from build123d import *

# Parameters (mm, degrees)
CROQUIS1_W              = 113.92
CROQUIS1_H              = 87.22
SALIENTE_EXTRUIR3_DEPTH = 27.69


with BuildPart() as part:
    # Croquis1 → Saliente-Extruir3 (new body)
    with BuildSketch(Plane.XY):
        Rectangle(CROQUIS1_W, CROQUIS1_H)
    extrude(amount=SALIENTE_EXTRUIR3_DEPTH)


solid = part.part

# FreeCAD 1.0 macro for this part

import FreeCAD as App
import Part
import Sketcher

V = App.Vector


def add_polygon(sketch, points):
    """Adds a closed chain of lines whose ends are joined by coincident constraints."""
    first, n = sketch.GeometryCount, len(points)
    for a, b in zip(points, points[1:] + points[:1]):
        sketch.addGeometry(Part.LineSegment(App.Vector(*a, 0), App.Vector(*b, 0)), False)
    for i in range(n):
        sketch.addConstraint(Sketcher.Constraint("Coincident", first + i, 2, first + (i + 1) % n, 1))

doc = App.newDocument("Part")
body = doc.addObject("PartDesign::Body", "Body")

sketch1 = doc.addObject("Sketcher::SketchObject", "Sketch")
body.addObject(sketch1)
sketch1.AttachmentSupport = (doc.XY_Plane, [""])
sketch1.MapMode = "FlatFace"
add_polygon(sketch1, [(-56.96, 43.61), (-56.96, -43.61), (56.96, -43.61), (56.96, 43.61)])
sketch1.addConstraint(Sketcher.Constraint("Vertical", 0))
sketch1.addConstraint(Sketcher.Constraint("Horizontal", 1))
sketch1.addConstraint(Sketcher.Constraint("Vertical", 2))
sketch1.addConstraint(Sketcher.Constraint("Horizontal", 3))
sketch1.addConstraint(Sketcher.Constraint("Symmetric", 0, 2, 2, 2, -1, 1))
sketch1.addConstraint(Sketcher.Constraint("DistanceX", 1, 1, 1, 2, 113.92))
sketch1.addConstraint(Sketcher.Constraint("DistanceY", 0, 2, 0, 1, 87.22))
pad1 = doc.addObject("PartDesign::Pad", "Pad")
body.addObject(pad1)
pad1.Profile = sketch1
pad1.Length = 27.69

doc.recompute()
